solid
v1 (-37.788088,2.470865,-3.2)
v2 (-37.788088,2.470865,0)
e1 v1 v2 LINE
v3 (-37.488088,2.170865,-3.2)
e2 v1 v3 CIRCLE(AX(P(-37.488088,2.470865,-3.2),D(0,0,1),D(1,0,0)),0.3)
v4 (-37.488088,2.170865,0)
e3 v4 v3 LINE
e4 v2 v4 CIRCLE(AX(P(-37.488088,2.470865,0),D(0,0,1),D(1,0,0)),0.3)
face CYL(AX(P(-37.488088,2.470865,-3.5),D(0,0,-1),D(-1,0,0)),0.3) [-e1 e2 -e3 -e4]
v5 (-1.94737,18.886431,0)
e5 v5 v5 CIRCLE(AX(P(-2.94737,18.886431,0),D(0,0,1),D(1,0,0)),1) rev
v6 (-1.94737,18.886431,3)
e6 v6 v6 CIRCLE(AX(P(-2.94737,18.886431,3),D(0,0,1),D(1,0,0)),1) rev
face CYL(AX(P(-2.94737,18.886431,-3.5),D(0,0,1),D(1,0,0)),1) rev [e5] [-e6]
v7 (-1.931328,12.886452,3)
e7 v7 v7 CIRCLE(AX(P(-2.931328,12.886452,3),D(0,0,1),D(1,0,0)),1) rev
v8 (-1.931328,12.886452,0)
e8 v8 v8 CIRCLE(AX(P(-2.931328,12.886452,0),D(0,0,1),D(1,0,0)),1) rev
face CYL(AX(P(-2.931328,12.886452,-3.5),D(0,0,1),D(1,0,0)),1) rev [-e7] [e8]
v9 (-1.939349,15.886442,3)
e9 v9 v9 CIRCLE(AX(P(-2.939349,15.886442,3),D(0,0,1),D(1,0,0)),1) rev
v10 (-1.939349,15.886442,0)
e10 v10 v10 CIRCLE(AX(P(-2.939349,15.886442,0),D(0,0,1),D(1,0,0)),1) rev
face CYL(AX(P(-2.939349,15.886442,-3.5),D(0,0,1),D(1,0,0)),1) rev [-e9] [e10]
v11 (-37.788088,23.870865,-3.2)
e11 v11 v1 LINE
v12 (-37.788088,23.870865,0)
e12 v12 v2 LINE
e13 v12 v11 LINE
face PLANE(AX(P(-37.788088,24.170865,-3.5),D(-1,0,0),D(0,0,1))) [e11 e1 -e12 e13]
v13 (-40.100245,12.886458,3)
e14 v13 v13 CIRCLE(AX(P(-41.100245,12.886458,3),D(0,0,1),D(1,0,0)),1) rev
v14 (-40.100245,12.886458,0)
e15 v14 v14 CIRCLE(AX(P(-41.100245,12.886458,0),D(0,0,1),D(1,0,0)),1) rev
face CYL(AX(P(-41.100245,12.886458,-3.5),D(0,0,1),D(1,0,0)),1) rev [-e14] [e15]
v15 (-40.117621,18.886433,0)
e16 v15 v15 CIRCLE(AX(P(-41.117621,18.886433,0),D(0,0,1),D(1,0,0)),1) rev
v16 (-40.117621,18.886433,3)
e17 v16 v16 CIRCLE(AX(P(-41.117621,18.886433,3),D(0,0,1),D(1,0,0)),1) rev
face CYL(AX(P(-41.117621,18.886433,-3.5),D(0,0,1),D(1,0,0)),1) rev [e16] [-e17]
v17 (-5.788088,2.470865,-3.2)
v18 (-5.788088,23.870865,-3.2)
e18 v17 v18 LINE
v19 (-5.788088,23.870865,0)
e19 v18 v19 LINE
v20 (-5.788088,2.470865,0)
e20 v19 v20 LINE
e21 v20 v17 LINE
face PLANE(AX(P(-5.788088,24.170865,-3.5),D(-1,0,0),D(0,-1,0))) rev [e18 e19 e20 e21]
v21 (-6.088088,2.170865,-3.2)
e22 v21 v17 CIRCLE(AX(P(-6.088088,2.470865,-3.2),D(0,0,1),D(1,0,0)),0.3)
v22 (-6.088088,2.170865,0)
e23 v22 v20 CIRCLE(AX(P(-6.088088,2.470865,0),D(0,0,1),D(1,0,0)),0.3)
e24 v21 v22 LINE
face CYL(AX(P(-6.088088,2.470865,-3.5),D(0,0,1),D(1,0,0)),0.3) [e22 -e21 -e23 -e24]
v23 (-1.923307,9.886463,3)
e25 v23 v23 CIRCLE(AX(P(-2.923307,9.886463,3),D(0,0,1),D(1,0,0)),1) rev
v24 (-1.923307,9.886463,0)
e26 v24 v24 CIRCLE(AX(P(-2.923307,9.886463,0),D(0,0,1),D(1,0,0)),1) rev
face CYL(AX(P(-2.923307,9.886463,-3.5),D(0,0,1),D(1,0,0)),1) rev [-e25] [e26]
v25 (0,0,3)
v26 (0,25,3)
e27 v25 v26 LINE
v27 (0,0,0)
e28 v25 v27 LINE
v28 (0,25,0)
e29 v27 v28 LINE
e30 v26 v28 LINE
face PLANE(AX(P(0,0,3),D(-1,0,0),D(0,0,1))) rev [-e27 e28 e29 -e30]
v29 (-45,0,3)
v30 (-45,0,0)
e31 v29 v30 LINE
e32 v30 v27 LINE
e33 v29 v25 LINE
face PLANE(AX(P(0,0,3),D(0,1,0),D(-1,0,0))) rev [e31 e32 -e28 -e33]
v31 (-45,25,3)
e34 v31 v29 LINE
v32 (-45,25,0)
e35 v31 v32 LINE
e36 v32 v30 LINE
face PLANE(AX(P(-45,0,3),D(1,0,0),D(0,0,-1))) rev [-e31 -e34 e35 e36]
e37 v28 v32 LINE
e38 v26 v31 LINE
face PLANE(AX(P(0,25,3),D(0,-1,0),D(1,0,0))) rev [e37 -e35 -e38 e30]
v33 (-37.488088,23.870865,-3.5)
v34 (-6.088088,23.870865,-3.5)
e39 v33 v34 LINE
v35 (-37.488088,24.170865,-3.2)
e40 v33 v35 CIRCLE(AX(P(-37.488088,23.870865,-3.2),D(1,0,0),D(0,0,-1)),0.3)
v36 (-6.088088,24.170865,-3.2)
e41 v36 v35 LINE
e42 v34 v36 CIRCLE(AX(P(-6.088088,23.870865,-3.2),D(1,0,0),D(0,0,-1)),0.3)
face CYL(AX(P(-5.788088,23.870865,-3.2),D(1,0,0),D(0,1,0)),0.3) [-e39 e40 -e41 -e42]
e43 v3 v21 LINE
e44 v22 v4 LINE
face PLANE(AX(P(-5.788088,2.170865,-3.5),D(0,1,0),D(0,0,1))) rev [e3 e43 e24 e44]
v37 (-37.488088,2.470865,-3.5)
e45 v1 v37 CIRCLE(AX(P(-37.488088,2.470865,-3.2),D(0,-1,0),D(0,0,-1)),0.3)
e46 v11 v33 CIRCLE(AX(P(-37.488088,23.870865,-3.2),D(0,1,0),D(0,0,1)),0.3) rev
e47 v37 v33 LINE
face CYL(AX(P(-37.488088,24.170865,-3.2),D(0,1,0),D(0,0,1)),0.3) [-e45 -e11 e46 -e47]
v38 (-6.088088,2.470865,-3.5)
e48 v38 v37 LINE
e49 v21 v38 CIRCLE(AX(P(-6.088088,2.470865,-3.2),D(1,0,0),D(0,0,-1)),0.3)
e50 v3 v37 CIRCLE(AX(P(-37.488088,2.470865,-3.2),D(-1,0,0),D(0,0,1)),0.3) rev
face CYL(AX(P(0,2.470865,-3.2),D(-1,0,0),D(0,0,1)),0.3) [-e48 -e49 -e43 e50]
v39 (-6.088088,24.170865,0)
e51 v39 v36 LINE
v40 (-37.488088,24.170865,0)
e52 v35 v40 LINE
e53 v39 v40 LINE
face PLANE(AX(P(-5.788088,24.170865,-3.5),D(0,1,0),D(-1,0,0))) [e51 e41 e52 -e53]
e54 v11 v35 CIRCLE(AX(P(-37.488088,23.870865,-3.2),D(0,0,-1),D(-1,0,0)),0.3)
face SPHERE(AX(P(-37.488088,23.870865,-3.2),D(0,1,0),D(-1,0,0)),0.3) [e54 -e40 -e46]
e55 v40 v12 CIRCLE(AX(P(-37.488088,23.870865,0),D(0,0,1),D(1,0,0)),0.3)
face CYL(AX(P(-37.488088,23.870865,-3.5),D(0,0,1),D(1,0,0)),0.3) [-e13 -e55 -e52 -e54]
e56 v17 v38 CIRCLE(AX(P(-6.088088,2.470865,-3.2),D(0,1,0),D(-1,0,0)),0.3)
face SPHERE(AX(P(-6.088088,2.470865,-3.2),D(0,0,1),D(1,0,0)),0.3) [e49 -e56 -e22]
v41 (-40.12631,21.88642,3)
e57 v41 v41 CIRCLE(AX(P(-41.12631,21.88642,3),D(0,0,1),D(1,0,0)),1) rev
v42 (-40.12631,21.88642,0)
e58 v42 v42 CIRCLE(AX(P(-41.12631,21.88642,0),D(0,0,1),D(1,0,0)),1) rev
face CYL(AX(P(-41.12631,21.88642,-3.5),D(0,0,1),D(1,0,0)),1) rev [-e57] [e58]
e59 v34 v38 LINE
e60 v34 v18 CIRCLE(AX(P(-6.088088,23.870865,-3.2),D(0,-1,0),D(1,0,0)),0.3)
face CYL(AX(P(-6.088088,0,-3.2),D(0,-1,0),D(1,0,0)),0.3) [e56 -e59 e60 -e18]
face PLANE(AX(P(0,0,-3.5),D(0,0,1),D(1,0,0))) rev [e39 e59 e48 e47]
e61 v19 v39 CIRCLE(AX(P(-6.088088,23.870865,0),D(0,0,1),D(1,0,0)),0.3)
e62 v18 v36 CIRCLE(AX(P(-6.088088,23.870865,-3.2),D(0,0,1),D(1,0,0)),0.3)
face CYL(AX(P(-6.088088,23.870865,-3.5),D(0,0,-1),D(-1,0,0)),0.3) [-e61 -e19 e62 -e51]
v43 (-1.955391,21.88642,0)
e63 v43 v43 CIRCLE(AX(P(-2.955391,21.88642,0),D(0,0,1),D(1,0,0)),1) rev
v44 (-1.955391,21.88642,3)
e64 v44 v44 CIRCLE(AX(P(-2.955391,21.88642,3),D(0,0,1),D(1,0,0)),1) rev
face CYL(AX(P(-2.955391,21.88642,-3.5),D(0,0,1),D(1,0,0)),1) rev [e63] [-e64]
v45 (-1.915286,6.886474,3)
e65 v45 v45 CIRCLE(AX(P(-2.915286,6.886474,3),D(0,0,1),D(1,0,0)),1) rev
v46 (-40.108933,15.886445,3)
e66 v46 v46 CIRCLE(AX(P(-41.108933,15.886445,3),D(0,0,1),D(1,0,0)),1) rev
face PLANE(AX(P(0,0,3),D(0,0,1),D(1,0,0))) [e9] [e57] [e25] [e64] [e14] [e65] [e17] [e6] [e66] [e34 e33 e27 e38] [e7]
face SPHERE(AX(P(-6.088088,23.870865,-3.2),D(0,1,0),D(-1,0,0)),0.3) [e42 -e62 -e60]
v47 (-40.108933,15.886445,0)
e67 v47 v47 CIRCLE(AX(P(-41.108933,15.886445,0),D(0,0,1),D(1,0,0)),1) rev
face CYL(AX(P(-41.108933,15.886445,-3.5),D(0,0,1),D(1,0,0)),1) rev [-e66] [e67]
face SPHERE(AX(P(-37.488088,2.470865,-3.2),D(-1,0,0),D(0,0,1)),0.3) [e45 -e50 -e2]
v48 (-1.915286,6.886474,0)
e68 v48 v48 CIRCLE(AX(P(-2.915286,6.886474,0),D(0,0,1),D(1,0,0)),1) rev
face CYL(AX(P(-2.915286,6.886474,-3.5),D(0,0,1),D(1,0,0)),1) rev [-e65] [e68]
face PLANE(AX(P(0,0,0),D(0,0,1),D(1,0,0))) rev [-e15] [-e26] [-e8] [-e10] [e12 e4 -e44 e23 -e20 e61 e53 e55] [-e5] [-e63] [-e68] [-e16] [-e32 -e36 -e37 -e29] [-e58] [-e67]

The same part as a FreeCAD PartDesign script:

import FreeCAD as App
import Part
import Sketcher


def edges_at(feature, points):
    """Names of the edges that pass closest to the given points."""
    edges = feature.Shape.Edges
    near = lambda p: min(range(len(edges)), key=lambda i: edges[i].distToShape(Part.Vertex(*p))[0])
    return sorted({f"Edge{near(p) + 1}" for p in points})


def add_polygon(sketch, points):
    """Adds a closed chain of lines whose ends are joined by coincident constraints."""
    first, n = sketch.GeometryCount, len(points)
    for a, b in zip(points, points[1:] + points[:1]):
        sketch.addGeometry(Part.LineSegment(App.Vector(*a, 0), App.Vector(*b, 0)), False)
    for i in range(n):
        sketch.addConstraint(Sketcher.Constraint("Coincident", first + i, 2, first + (i + 1) % n, 1))

doc = App.newDocument("Part")
params = doc.addObject("Spreadsheet::Sheet", "Params")
for row, (alias, value) in enumerate([
    ("sketch1_width", "45 mm"),
    ("sketch1_height", "25 mm"),
    ("pad1_length", "3 mm"),
    ("sketch2_width", "32 mm"),
    ("sketch2_height", "22 mm"),
    ("pad2_length", "3.5 mm"),
    ("fillet_radius", "0.3 mm"),
    ("fillet2_radius", "0.3 mm"),
    ("fillet3_radius", "0.3 mm"),
    ("fillet4_radius", "0.3 mm"),
    ("sketch3_diameter", "2 mm"),
], start=1):
    params.set(f"A{row}", alias)
    params.set(f"B{row}", "=" + value)
    params.setAlias(f"B{row}", alias)

body = doc.addObject("PartDesign::Body", "Body")

# Sketch on XY plane
sketch1 = body.newObject("Sketcher::SketchObject", "Sketch")
sketch1.AttachmentSupport = (doc.getObject("XY_Plane"), [""])
sketch1.MapMode = "FlatFace"
add_polygon(sketch1, [(-45, 25), (-45, 0), (0, 0), (0, 25)])  # lines 0-3
sketch1.addConstraint(Sketcher.Constraint("Vertical", 0))
sketch1.addConstraint(Sketcher.Constraint("Horizontal", 1))
sketch1.addConstraint(Sketcher.Constraint("Vertical", 2))
sketch1.addConstraint(Sketcher.Constraint("Horizontal", 3))
sketch1.addConstraint(Sketcher.Constraint("Coincident", 1, 2, -1, 1))
sketch1.addConstraint(Sketcher.Constraint("DistanceX", 1, 1, 1, 2, 45.0))
sketch1.addConstraint(Sketcher.Constraint("DistanceY", 0, 2, 0, 1, 25.0))
sketch1.setExpression("Constraints[9]", "Params.sketch1_width")
sketch1.setExpression("Constraints[10]", "Params.sketch1_height")
pad1 = body.newObject("PartDesign::Pad", "Pad")
pad1.Profile = sketch1
pad1.setExpression("Length", "Params.pad1_length")

# Sketch on XY plane
sketch2 = body.newObject("Sketcher::SketchObject", "Sketch001")
sketch2.AttachmentSupport = (doc.getObject("XY_Plane"), [""])
sketch2.MapMode = "FlatFace"
add_polygon(sketch2, [(-38, 24), (-38, 2), (-6, 2), (-6, 24)])  # lines 0-3
sketch2.addConstraint(Sketcher.Constraint("Vertical", 0))
sketch2.addConstraint(Sketcher.Constraint("Horizontal", 1))
sketch2.addConstraint(Sketcher.Constraint("Vertical", 2))
sketch2.addConstraint(Sketcher.Constraint("Horizontal", 3))
sketch2.addConstraint(Sketcher.Constraint("DistanceX", 1, 1, 1, 2, 32.0))
sketch2.addConstraint(Sketcher.Constraint("DistanceY", 0, 2, 0, 1, 22.0))
sketch2.addConstraint(Sketcher.Constraint("DistanceX", 0, 2, -1, 1, 37.788088))
sketch2.addConstraint(Sketcher.Constraint("DistanceY", -1, 1, 0, 2, 2.170865))
sketch2.setExpression("Constraints[8]", "Params.sketch2_width")
sketch2.setExpression("Constraints[9]", "Params.sketch2_height")
pad2 = body.newObject("PartDesign::Pad", "Pad001")
pad2.Profile = sketch2
pad2.setExpression("Length", "Params.pad2_length")
pad2.Reversed = True
doc.recompute()

fillet = body.newObject("PartDesign::Fillet", "Fillet")
fillet.Base = (pad2, edges_at(pad2, [(-5.788, 2.171, -1.75)]))
fillet.setExpression("Radius", "Params.fillet_radius")
doc.recompute()

fillet2 = body.newObject("PartDesign::Fillet", "Fillet001")
fillet2.Base = (fillet, edges_at(fillet, [(-5.788, 13.321, -3.5), (-21.938, 2.171, -3.5), (-5.876, 2.259, -3.5)]))
fillet2.setExpression("Radius", "Params.fillet2_radius")
doc.recompute()

fillet3 = body.newObject("PartDesign::Fillet", "Fillet002")
fillet3.Base = (fillet2, edges_at(fillet2, [(-37.788, 13.321, -3.5), (-37.788, 2.171, -1.6), (-37.788, 2.259, -3.412)]))
fillet3.setExpression("Radius", "Params.fillet3_radius")
doc.recompute()

fillet4 = body.newObject("PartDesign::Fillet", "Fillet003")
fillet4.Base = (fillet3, edges_at(fillet3, [
    (-21.788, 24.171, -3.5),
    (-5.788, 24.171, -1.6),
    (-5.876, 24.171, -3.412),
    (-37.788, 24.171, -1.6),
    (-37.7, 24.171, -3.412),
]))
fillet4.setExpression("Radius", "Params.fillet4_radius")

# Sketch on XY plane
sketch3 = body.newObject("Sketcher::SketchObject", "Sketch002")
sketch3.AttachmentSupport = (doc.getObject("XY_Plane"), [""])
sketch3.MapMode = "FlatFace"
sketch3.addGeometry(Part.Circle(App.Vector(-41.1, 21.9, 0), App.Vector(0, 0, 1), 1), False)
sketch3.addGeometry(Part.Circle(App.Vector(-3, 21.9, 0), App.Vector(0, 0, 1), 1), False)
sketch3.addGeometry(Part.Circle(App.Vector(-41.1, 18.9, 0), App.Vector(0, 0, 1), 1), False)
sketch3.addGeometry(Part.Circle(App.Vector(-41.1, 15.9, 0), App.Vector(0, 0, 1), 1), False)
sketch3.addGeometry(Part.Circle(App.Vector(-41.1, 12.9, 0), App.Vector(0, 0, 1), 1), False)
sketch3.addGeometry(Part.Circle(App.Vector(-2.9, 18.9, 0), App.Vector(0, 0, 1), 1), False)
sketch3.addGeometry(Part.Circle(App.Vector(-2.9, 15.9, 0), App.Vector(0, 0, 1), 1), False)
sketch3.addGeometry(Part.Circle(App.Vector(-2.9, 12.9, 0), App.Vector(0, 0, 1), 1), False)
sketch3.addGeometry(Part.Circle(App.Vector(-2.9, 9.9, 0), App.Vector(0, 0, 1), 1), False)
sketch3.addGeometry(Part.Circle(App.Vector(-2.9, 6.9, 0), App.Vector(0, 0, 1), 1), False)
sketch3.addConstraint(Sketcher.Constraint("Equal", 0, 1))
sketch3.addConstraint(Sketcher.Constraint("Equal", 1, 2))
sketch3.addConstraint(Sketcher.Constraint("Equal", 2, 3))
sketch3.addConstraint(Sketcher.Constraint("Equal", 3, 4))
sketch3.addConstraint(Sketcher.Constraint("Equal", 4, 5))
sketch3.addConstraint(Sketcher.Constraint("Equal", 5, 6))
sketch3.addConstraint(Sketcher.Constraint("Equal", 6, 7))
sketch3.addConstraint(Sketcher.Constraint("Equal", 7, 8))
sketch3.addConstraint(Sketcher.Constraint("Equal", 8, 9))
sketch3.addConstraint(Sketcher.Constraint("Horizontal", 0, 3, 1, 3))
sketch3.addConstraint(Sketcher.Constraint("Horizontal", 2, 3, 5, 3))
sketch3.addConstraint(Sketcher.Constraint("Diameter", 0, 2.0))
sketch3.addConstraint(Sketcher.Constraint("DistanceX", 0, 3, -1, 1, 41.12631))
sketch3.addConstraint(Sketcher.Constraint("DistanceY", -1, 1, 0, 3, 21.88642))
sketch3.addConstraint(Sketcher.Constraint("DistanceX", 1, 3, -1, 1, 2.955391))
sketch3.addConstraint(Sketcher.Constraint("DistanceX", 2, 3, -1, 1, 41.117621))
sketch3.addConstraint(Sketcher.Constraint("DistanceY", -1, 1, 4, 3, 12.886458))
sketch3.addConstraint(Sketcher.Constraint("DistanceX", 5, 3, -1, 1, 2.94737))
sketch3.addConstraint(Sketcher.Constraint("DistanceY", -1, 1, 5, 3, 18.886431))
sketch3.addConstraint(Sketcher.Constraint("DistanceX", 6, 3, -1, 1, 2.939349))
sketch3.addConstraint(Sketcher.Constraint("DistanceY", -1, 1, 6, 3, 15.886442))
sketch3.addConstraint(Sketcher.Constraint("DistanceX", 7, 3, -1, 1, 2.931328))
sketch3.addConstraint(Sketcher.Constraint("DistanceX", 2, 3, 3, 3, 0.008688))
sketch3.addConstraint(Sketcher.Constraint("DistanceX", 3, 3, 4, 3, 0.008688))
sketch3.addConstraint(Sketcher.Constraint("DistanceY", 7, 3, 6, 3, 2.999989))
sketch3.addConstraint(Sketcher.Constraint("DistanceX", 7, 3, 8, 3, 0.008021))
sketch3.addConstraint(Sketcher.Constraint("DistanceY", 8, 3, 7, 3, 2.999989))
sketch3.addConstraint(Sketcher.Constraint("DistanceX", 8, 3, 9, 3, 0.008021))
sketch3.addConstraint(Sketcher.Constraint("DistanceY", 9, 3, 8, 3, 2.999989))
sketch3.addConstraint(Sketcher.Constraint("DistanceY", -1, 1, 3, 3, 15.886445))
sketch3.setExpression("Constraints[11]", "Params.sketch3_diameter")
pocket1 = body.newObject("PartDesign::Pocket", "Pocket")
pocket1.Profile = sketch3
pocket1.Type = "ThroughAll"
pocket1.Midplane = True

doc.recompute()
